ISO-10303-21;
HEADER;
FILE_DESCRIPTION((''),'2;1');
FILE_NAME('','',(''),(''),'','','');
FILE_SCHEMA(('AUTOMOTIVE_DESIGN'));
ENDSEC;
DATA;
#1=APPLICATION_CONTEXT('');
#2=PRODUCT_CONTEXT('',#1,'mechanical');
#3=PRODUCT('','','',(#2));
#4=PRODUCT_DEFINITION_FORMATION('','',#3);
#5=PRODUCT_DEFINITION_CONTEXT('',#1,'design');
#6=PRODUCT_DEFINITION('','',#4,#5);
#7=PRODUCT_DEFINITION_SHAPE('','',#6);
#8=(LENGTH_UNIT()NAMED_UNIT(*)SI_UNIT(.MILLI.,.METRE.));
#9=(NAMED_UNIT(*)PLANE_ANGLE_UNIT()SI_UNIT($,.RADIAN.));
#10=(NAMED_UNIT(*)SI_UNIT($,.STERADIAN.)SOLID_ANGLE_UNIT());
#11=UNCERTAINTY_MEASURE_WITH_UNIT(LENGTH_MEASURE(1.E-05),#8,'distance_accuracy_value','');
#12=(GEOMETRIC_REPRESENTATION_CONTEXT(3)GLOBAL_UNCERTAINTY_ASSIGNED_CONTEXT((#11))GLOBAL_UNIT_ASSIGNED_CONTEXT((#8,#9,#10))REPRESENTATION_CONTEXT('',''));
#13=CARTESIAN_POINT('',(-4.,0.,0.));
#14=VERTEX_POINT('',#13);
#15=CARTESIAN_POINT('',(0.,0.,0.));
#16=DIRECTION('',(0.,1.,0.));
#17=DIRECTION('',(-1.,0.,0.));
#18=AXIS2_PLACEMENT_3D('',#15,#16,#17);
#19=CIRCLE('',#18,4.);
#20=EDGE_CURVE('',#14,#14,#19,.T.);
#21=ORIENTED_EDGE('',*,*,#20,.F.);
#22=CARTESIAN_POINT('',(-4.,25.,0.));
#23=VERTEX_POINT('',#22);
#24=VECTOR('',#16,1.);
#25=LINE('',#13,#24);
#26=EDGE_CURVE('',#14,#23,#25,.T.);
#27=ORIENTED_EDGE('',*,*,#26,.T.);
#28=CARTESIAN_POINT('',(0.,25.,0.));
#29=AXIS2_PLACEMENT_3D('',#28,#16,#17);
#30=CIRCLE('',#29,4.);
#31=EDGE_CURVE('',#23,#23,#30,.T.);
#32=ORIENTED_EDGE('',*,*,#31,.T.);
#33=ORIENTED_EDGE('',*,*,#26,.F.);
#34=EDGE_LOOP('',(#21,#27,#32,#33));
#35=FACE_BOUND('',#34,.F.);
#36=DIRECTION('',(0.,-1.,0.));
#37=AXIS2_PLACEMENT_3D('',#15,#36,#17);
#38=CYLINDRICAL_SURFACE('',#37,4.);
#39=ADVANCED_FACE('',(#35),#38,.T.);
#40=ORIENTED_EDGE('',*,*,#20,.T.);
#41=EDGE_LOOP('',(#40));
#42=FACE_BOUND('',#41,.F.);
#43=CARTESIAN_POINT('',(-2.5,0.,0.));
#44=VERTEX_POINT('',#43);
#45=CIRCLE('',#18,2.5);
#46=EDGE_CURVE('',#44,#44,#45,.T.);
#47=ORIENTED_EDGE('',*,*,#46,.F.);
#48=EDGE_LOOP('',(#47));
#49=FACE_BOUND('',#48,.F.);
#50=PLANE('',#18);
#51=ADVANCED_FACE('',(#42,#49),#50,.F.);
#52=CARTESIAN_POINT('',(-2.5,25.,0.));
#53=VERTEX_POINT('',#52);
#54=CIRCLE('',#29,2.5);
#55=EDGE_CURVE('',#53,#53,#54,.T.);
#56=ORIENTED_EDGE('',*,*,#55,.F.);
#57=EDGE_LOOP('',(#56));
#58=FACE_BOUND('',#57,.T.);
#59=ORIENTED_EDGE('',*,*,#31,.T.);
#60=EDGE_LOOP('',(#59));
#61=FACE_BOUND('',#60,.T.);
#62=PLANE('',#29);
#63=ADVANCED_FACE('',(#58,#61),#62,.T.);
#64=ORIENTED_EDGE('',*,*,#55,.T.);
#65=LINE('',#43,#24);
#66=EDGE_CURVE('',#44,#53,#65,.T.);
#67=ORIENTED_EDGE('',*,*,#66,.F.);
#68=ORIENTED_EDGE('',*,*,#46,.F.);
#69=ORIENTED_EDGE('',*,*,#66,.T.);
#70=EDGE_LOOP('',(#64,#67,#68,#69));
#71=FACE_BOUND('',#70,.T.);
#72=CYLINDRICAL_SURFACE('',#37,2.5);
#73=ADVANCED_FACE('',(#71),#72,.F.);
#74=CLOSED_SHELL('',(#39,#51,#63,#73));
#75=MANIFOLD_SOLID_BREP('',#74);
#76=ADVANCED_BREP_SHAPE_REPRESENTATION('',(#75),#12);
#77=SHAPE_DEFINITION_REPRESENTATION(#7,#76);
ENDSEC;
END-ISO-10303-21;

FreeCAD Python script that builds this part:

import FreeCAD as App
import Part
import Sketcher

V = App.Vector

doc = App.newDocument("Part")
params = doc.addObject("Spreadsheet::Sheet", "Params")
for row, (alias, value) in enumerate([
    ("sketch1_diameter", "5 mm"),
    ("sketch1_diameter2", "8 mm"),
    ("pad1_length", "25 mm"),
], start=1):
    params.set(f"A{row}", alias)
    params.set(f"B{row}", "=" + value)
    params.setAlias(f"B{row}", alias)

body = doc.addObject("PartDesign::Body", "Body")

sketch1 = body.newObject("Sketcher::SketchObject", "Sketch")
sketch1.AttachmentSupport = (doc.getObject("XZ_Plane"), [""])
sketch1.MapMode = "FlatFace"
sketch1.addGeometry(Part.Circle(V(0, 0, 0), V(0, 0, 1), 4), False)
sketch1.addGeometry(Part.Circle(V(0, 0, 0), V(0, 0, 1), 2.5), False)
sketch1.addConstraint(Sketcher.Constraint("Coincident", 0, 3, -1, 1))
sketch1.addConstraint(Sketcher.Constraint("Coincident", 1, 3, -1, 1))
sketch1.addConstraint(Sketcher.Constraint("Diameter", 1, 5.0))
sketch1.addConstraint(Sketcher.Constraint("Diameter", 0, 8.0))
sketch1.setExpression("Constraints[2]", "Params.sketch1_diameter")
sketch1.setExpression("Constraints[3]", "Params.sketch1_diameter2")
pad1 = body.newObject("PartDesign::Pad", "Pad")
pad1.Profile = sketch1
pad1.setExpression("Length", "Params.pad1_length")
pad1.Reversed = True

doc.recompute()
